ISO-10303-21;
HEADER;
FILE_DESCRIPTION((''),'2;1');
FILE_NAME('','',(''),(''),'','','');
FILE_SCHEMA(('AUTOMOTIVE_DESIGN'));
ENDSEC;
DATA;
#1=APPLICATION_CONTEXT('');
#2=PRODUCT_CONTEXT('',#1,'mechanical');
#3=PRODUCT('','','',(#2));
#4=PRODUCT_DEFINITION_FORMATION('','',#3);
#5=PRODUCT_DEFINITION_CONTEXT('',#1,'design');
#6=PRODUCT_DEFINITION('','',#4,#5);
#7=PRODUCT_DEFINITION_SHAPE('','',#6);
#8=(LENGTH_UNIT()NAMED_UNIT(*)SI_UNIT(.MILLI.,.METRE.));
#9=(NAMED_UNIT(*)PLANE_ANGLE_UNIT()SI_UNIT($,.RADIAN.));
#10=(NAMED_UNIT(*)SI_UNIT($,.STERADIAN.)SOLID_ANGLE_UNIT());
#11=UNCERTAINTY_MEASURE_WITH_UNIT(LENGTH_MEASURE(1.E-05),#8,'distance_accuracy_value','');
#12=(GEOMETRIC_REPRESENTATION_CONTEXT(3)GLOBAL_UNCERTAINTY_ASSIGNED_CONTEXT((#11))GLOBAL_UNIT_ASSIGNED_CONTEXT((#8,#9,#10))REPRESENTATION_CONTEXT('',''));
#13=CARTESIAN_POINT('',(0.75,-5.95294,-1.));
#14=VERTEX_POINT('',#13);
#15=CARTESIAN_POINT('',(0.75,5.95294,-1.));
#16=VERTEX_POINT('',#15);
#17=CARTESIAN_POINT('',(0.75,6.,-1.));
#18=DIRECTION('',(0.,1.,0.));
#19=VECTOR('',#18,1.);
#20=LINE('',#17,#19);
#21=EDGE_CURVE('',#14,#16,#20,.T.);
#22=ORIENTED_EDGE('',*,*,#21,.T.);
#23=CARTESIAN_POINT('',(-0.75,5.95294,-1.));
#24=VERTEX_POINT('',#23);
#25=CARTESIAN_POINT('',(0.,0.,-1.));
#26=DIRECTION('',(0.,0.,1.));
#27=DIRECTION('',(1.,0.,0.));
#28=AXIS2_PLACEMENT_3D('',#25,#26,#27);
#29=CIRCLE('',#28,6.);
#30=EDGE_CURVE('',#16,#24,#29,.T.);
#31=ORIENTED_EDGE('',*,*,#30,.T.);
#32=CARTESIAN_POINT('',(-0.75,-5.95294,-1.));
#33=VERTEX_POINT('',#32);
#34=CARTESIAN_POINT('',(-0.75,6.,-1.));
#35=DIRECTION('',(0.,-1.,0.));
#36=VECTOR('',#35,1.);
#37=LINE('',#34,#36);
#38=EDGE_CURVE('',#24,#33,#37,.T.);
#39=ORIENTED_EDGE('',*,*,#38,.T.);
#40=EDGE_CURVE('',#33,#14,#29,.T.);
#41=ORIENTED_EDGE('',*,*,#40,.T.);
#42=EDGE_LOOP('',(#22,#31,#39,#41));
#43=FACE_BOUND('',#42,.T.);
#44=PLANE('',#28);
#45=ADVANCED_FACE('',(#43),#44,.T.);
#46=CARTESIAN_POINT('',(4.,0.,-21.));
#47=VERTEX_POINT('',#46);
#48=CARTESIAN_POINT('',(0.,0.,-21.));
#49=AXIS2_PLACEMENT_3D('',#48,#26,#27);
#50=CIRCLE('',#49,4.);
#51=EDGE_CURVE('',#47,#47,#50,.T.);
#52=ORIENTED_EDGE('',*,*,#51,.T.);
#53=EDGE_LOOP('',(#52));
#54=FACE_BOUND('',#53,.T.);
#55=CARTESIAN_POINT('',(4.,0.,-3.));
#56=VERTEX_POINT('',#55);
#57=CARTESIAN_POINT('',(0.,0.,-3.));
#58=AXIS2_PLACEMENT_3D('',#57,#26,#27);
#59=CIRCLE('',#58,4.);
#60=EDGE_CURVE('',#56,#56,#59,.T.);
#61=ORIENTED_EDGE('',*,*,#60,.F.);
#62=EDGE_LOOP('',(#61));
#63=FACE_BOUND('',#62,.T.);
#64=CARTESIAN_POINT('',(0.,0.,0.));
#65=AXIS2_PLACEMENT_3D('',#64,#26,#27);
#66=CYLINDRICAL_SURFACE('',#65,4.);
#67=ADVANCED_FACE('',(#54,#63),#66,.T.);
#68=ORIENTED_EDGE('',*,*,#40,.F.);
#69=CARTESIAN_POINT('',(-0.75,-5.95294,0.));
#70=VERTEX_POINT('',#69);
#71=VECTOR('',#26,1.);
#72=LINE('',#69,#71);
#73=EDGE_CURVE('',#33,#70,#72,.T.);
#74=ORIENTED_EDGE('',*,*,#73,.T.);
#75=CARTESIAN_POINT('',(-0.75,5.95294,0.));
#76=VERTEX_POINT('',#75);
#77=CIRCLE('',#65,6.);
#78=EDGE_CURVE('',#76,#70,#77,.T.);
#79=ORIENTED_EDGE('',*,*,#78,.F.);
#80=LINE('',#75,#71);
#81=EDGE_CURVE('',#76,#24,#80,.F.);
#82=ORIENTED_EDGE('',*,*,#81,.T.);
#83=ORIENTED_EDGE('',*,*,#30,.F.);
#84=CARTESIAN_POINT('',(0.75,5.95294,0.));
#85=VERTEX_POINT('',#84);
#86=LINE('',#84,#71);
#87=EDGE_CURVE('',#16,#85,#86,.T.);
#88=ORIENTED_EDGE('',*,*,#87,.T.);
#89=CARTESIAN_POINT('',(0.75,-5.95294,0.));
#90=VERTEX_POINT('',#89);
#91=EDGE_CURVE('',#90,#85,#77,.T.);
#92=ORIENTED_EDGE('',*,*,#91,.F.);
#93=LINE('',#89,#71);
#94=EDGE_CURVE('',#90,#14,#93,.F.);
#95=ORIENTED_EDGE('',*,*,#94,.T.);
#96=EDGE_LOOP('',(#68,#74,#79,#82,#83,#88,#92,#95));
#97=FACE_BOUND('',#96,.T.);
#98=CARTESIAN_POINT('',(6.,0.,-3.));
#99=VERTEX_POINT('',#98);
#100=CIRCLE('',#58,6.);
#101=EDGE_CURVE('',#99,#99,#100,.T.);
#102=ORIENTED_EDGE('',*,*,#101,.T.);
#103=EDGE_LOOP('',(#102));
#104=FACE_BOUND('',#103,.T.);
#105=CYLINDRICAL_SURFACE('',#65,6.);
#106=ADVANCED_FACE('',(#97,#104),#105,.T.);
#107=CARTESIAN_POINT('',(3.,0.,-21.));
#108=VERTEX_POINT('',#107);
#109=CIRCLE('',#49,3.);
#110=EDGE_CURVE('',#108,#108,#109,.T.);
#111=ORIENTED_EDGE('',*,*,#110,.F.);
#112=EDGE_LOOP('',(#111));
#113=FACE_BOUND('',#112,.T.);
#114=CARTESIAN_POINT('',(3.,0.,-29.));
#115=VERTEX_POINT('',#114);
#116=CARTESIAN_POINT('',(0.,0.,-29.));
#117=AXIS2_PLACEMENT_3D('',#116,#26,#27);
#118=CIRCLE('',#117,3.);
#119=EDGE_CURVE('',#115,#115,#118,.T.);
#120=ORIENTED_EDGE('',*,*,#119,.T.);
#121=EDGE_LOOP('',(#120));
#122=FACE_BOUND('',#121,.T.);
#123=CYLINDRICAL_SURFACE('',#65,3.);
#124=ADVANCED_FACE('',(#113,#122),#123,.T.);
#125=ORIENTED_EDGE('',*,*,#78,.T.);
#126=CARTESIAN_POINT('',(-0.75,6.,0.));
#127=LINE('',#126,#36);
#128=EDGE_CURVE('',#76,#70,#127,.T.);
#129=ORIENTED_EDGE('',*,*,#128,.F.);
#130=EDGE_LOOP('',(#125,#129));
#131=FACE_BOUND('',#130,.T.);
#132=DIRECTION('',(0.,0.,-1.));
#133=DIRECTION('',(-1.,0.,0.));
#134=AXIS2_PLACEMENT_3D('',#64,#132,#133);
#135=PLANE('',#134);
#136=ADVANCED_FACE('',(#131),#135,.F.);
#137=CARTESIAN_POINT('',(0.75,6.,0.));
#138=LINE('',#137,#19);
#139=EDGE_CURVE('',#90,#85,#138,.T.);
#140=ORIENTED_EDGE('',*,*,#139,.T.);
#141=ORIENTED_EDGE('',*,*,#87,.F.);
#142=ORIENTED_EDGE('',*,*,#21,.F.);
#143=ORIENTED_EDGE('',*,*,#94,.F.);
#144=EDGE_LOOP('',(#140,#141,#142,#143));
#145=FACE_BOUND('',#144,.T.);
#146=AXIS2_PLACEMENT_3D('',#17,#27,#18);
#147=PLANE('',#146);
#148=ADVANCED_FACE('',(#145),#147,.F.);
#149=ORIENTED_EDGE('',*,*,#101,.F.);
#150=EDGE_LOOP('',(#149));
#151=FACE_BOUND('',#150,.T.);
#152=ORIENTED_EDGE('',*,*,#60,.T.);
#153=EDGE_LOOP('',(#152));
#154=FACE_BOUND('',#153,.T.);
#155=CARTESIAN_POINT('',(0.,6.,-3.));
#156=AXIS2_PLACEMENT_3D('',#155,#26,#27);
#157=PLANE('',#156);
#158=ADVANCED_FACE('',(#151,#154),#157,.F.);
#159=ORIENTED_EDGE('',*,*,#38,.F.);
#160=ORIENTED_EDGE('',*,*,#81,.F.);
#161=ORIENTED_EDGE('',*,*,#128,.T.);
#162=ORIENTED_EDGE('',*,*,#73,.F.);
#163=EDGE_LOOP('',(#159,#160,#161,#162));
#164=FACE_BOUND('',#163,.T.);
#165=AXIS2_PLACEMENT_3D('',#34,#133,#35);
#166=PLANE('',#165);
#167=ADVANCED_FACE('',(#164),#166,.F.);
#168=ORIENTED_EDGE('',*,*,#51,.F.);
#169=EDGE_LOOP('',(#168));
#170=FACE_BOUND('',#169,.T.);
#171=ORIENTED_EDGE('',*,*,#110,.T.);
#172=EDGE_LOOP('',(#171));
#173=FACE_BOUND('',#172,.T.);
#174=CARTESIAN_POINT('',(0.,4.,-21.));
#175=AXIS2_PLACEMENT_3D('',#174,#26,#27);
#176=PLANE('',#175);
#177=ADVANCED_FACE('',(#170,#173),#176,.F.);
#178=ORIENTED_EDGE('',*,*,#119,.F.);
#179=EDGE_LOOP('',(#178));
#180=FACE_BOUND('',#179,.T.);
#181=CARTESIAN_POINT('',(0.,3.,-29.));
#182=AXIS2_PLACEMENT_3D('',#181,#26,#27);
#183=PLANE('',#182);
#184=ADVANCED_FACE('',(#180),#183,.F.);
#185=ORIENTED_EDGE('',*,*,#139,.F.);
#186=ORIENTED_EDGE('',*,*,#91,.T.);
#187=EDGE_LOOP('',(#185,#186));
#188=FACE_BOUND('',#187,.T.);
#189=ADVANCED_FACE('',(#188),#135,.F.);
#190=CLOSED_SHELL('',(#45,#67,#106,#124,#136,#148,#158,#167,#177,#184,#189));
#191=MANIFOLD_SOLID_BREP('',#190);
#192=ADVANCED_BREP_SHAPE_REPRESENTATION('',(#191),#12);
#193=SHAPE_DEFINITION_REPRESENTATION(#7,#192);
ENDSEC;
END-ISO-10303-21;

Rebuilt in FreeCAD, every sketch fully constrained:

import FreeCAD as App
import Part
import Sketcher
Q = App.Units.Quantity

doc = App.newDocument("Part")
body = doc.addObject("PartDesign::Body", "Body")

sketch1 = body.newObject("Sketcher::SketchObject", "Sketch")
sketch1.AttachmentSupport = (doc.getObject("YZ_Plane"), [""])
sketch1.MapMode = "FlatFace"
sketch1.addGeometry([
    Part.LineSegment(App.Vector(6, 0, 0), App.Vector(0, 0, 0)),
    Part.LineSegment(App.Vector(0, 0, 0), App.Vector(0, -29, 0)),
    Part.LineSegment(App.Vector(0, -29, 0), App.Vector(3, -29, 0)),
    Part.LineSegment(App.Vector(3, -29, 0), App.Vector(3, -21, 0)),
    Part.LineSegment(App.Vector(3, -21, 0), App.Vector(4, -21, 0)),
    Part.LineSegment(App.Vector(4, -21, 0), App.Vector(4, -3, 0)),
    Part.LineSegment(App.Vector(4, -3, 0), App.Vector(6, -3, 0)),
    Part.LineSegment(App.Vector(6, -3, 0), App.Vector(6, 0, 0)),
], False)
sketch1.addConstraint([
    Sketcher.Constraint("Coincident", 0, 2, 1, 1),
    Sketcher.Constraint("Coincident", 1, 2, 2, 1),
    Sketcher.Constraint("Coincident", 2, 2, 3, 1),
    Sketcher.Constraint("Coincident", 3, 2, 4, 1),
    Sketcher.Constraint("Coincident", 4, 2, 5, 1),
    Sketcher.Constraint("Coincident", 5, 2, 6, 1),
    Sketcher.Constraint("Coincident", 6, 2, 7, 1),
    Sketcher.Constraint("Coincident", 7, 2, 0, 1),
    Sketcher.Constraint("Horizontal", 0),
    Sketcher.Constraint("Vertical", 1),
    Sketcher.Constraint("Horizontal", 2),
    Sketcher.Constraint("Vertical", 3),
    Sketcher.Constraint("Horizontal", 4),
    Sketcher.Constraint("Vertical", 5),
    Sketcher.Constraint("Horizontal", 6),
    Sketcher.Constraint("Vertical", 7),
    Sketcher.Constraint("Coincident", 0, 2, -1, 1),
    Sketcher.Constraint("Equal", 2, 7),
    Sketcher.Constraint("DistanceX", 0, 2, 0, 1, Q("6 mm")),
    Sketcher.Constraint("DistanceX", 2, 1, 2, 2, Q("3 mm")),
    Sketcher.Constraint("DistanceX", 4, 1, 4, 2, Q("1 mm")),
    Sketcher.Constraint("DistanceY", 1, 2, 1, 1, Q("29 mm")),
    Sketcher.Constraint("DistanceY", 3, 1, 3, 2, Q("8 mm")),
])
revolution = body.newObject("PartDesign::Revolution", "Revolution")
revolution.Profile = sketch1
revolution.ReferenceAxis = (sketch1, ["V_Axis"])
revolution.Angle = 360

sketch2 = body.newObject("Sketcher::SketchObject", "Sketch001")
sketch2.AttachmentSupport = (doc.getObject("XY_Plane"), [""])
sketch2.MapMode = "FlatFace"
sketch2.addGeometry([
    Part.LineSegment(App.Vector(-0.8, 6, 0), App.Vector(-0.8, -6, 0)),
    Part.LineSegment(App.Vector(-0.8, -6, 0), App.Vector(0.8, -6, 0)),
    Part.LineSegment(App.Vector(0.8, -6, 0), App.Vector(0.8, 6, 0)),
    Part.LineSegment(App.Vector(0.8, 6, 0), App.Vector(-0.8, 6, 0)),
], False)
sketch2.addConstraint([
    Sketcher.Constraint("Coincident", 0, 2, 1, 1),
    Sketcher.Constraint("Coincident", 1, 2, 2, 1),
    Sketcher.Constraint("Coincident", 2, 2, 3, 1),
    Sketcher.Constraint("Coincident", 3, 2, 0, 1),
    Sketcher.Constraint("Vertical", 0),
    Sketcher.Constraint("Horizontal", 1),
    Sketcher.Constraint("Vertical", 2),
    Sketcher.Constraint("Horizontal", 3),
    Sketcher.Constraint("Symmetric", 0, 2, 2, 2, -1, 1),
    Sketcher.Constraint("DistanceY", 0, 2, 0, 1, Q("12 mm")),
    Sketcher.Constraint("DistanceX", 1, 1, 1, 2, Q("1.5 mm")),
])
pocket1 = body.newObject("PartDesign::Pocket", "Pocket")
pocket1.Profile = sketch2
pocket1.Length = 1

doc.recompute()
